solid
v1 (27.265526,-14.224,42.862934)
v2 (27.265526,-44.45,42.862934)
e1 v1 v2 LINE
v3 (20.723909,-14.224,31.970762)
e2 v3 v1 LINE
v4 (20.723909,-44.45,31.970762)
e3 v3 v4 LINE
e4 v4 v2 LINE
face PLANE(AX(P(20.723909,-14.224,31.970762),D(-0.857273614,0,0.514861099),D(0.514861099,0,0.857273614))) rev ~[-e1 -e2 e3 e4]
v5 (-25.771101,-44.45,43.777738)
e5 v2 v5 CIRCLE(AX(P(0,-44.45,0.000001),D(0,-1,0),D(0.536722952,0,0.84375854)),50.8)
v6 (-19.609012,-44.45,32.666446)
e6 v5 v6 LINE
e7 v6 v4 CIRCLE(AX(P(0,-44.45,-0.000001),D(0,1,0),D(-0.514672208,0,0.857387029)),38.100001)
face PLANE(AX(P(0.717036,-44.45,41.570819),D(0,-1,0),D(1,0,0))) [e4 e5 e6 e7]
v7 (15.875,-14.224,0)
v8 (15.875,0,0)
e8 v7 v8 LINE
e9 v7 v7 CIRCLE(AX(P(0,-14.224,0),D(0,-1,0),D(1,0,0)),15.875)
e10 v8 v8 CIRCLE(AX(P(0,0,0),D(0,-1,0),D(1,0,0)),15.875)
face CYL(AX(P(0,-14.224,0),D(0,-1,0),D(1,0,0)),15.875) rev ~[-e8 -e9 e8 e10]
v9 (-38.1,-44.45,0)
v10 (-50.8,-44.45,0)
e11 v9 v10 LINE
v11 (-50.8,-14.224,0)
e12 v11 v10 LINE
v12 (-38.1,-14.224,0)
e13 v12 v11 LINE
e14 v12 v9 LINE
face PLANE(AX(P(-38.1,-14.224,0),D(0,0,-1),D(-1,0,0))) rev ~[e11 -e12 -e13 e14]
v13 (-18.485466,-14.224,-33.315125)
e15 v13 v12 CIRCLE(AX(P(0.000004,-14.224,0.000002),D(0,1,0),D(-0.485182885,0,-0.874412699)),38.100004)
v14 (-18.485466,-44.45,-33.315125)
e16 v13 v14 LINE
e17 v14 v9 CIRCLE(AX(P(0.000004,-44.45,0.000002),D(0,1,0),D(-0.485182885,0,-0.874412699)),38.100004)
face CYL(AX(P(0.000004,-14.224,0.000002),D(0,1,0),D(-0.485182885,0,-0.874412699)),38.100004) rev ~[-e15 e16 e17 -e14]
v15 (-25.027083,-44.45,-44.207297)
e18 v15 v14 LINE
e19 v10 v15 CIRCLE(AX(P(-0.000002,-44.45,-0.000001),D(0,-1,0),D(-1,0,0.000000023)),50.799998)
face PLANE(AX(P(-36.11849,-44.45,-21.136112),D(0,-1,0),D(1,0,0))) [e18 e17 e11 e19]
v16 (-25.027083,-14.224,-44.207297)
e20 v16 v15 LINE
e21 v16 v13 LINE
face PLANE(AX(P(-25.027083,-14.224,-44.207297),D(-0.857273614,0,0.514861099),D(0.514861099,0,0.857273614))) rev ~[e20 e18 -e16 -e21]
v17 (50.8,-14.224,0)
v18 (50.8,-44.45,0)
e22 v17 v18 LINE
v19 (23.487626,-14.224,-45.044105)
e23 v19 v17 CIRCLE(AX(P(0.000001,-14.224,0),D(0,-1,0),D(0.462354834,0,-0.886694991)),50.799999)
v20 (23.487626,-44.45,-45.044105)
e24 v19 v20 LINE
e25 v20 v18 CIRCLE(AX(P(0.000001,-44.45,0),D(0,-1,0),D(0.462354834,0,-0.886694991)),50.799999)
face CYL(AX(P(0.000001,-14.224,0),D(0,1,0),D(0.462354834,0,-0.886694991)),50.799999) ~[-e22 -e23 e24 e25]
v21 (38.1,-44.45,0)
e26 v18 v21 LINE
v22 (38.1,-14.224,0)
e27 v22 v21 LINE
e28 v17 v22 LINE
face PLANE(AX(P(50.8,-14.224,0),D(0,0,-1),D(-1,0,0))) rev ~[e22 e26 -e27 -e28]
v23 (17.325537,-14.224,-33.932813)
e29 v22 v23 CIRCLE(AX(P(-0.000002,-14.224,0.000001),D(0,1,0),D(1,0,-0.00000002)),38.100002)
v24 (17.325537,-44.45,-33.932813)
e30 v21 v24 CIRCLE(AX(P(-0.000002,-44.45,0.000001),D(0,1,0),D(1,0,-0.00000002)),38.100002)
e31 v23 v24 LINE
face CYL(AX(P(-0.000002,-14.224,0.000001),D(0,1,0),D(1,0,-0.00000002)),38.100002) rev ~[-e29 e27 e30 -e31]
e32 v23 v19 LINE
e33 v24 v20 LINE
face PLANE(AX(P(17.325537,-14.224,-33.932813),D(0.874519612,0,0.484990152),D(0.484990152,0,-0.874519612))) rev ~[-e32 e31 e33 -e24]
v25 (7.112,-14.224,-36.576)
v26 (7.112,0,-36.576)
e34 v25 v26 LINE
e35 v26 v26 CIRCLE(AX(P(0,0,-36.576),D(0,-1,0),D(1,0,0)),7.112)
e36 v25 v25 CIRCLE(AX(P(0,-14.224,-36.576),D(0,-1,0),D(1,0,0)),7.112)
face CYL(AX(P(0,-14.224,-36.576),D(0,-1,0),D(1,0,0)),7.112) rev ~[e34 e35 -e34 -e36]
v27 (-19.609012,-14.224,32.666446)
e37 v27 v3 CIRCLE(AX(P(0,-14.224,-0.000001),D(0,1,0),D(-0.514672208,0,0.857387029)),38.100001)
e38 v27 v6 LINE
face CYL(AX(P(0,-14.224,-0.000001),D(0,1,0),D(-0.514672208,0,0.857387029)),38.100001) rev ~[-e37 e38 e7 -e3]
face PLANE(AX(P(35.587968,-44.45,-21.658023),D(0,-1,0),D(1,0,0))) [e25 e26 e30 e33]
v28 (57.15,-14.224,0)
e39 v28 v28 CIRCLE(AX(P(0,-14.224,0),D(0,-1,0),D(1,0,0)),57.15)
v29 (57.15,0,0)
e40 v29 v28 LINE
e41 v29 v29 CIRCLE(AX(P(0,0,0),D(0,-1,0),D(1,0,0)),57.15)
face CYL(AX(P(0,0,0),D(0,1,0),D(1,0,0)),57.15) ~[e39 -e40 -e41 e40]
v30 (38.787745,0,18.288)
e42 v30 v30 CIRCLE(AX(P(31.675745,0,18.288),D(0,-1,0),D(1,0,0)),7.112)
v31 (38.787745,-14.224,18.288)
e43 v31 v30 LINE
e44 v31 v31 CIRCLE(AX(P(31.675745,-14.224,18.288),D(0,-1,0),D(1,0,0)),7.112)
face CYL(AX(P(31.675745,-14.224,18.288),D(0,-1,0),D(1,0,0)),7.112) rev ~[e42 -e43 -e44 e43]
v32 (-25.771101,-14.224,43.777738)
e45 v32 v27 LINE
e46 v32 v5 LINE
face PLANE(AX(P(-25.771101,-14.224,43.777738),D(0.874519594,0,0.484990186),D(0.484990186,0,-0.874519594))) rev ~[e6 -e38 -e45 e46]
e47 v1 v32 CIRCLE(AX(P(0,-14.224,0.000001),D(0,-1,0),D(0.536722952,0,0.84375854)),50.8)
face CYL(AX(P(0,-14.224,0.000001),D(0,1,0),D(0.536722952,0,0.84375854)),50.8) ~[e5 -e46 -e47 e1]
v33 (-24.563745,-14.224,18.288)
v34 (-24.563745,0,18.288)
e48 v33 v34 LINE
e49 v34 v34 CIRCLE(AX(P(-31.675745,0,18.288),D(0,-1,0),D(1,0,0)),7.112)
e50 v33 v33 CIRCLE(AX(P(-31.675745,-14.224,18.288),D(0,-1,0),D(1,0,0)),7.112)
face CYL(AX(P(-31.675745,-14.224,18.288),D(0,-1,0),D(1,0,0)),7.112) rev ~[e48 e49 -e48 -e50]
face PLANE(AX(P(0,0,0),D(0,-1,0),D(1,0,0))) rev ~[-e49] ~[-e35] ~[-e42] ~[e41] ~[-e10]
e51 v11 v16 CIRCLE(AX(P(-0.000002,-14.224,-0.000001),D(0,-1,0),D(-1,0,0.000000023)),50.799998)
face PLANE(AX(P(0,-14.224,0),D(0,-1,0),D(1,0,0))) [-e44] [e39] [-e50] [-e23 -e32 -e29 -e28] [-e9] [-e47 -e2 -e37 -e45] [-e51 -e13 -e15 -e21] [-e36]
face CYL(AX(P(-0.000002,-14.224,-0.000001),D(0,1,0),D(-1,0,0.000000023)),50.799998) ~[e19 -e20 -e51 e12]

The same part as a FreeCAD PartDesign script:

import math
import FreeCAD as App
import Part
import Sketcher
from FreeCAD import Vector
Q = App.Units.Quantity

doc = App.newDocument("Part")
body = doc.addObject("PartDesign::Body", "Body")

# Sketch on XZ plane
sketch1 = body.newObject("Sketcher::SketchObject", "Sketch")
sketch1.AttachmentSupport = (doc.getObject("XZ_Plane"), [""])
sketch1.MapMode = "FlatFace"
sketch1.addGeometry(Part.Circle(Vector(0, 0, 0), Vector(0, 0, 1), 57), False)
sketch1.addConstraint(Sketcher.Constraint("Coincident", 0, 3, -1, 1))
sketch1.addConstraint(Sketcher.Constraint("Diameter", 0, Q("4.5 in")))
pad1 = body.newObject("PartDesign::Pad", "Pad")
pad1.Profile = sketch1
pad1.Length = Q("0.56 in")

# Sketch on XZ plane
sketch2 = body.newObject("Sketcher::SketchObject", "Sketch001")
sketch2.AttachmentSupport = (doc.getObject("XZ_Plane"), [""])
sketch2.MapMode = "FlatFace"
sketch2.AttachmentOffset = App.Placement(Vector(0, 0, 0.56 * 25.4), App.Rotation())
sketch2.addGeometry(Part.Circle(Vector(0, 0, 0), Vector(0, 0, 1), 16), False)
sketch2.addConstraint(Sketcher.Constraint("Coincident", 0, 3, -1, 1))
sketch2.addConstraint(Sketcher.Constraint("Diameter", 0, Q("1.25 in")))
pocket1 = body.newObject("PartDesign::Pocket", "Pocket")
pocket1.Profile = sketch2
pocket1.Type = "ThroughAll"

# Sketch on XZ plane
sketch3 = body.newObject("Sketcher::SketchObject", "Sketch002")
sketch3.AttachmentSupport = (doc.getObject("XZ_Plane"), [""])
sketch3.MapMode = "FlatFace"
sketch3.AttachmentOffset = App.Placement(Vector(0, 0, 0.56 * 25.4), App.Rotation())
sketch3.addGeometry(Part.Circle(Vector(0, -37, 0), Vector(0, 0, 1), 7), False)
sketch3.addGeometry(Part.Circle(Vector(32, 18, 0), Vector(0, 0, 1), 7), False)
sketch3.addGeometry(Part.Circle(Vector(-32, 18, 0), Vector(0, 0, 1), 7), False)
sketch3.addConstraint(Sketcher.Constraint("Equal", 0, 1))
sketch3.addConstraint(Sketcher.Constraint("Equal", 1, 2))
sketch3.addConstraint(Sketcher.Constraint("Symmetric", 1, 3, 2, 3, -2))
sketch3.addConstraint(Sketcher.Constraint("PointOnObject", 0, 3, -2))
sketch3.addConstraint(Sketcher.Constraint("Diameter", 0, Q("0.56 in")))
sketch3.addConstraint(Sketcher.Constraint("DistanceY", 0, 3, -1, 1, Q("1.44 in")))
sketch3.addConstraint(Sketcher.Constraint("DistanceY", -1, 1, 1, 3, Q("0.72 in")))
sketch3.addConstraint(Sketcher.Constraint("DistanceX", 2, 3, 1, 3, Q("63.35149 mm")))
pocket2 = body.newObject("PartDesign::Pocket", "Pocket001")
pocket2.Profile = sketch3
pocket2.Type = "ThroughAll"

# Sketch on XZ plane
sketch4 = body.newObject("Sketcher::SketchObject", "Sketch003")
sketch4.AttachmentSupport = (doc.getObject("XZ_Plane"), [""])
sketch4.MapMode = "FlatFace"
sketch4.AttachmentOffset = App.Placement(Vector(0, 0, 0.56 * 25.4), App.Rotation())
sketch4.addGeometry(Part.ArcOfCircle(Part.Circle(Vector(0.000004, 0.000002, 0), Vector(0, 0, 1), 38.100004), math.radians(-179.999997), math.radians(-119.024455)), False)
sketch4.addGeometry(Part.LineSegment(Vector(-38.1, 0, 0), Vector(-50.8, 0, 0)), False)
sketch4.addGeometry(Part.ArcOfCircle(Part.Circle(Vector(-0.000002, -0.000001, 0), Vector(0, 0, 1), 50.799998), math.radians(179.999999), math.radians(240.484494)), False)
sketch4.addGeometry(Part.LineSegment(Vector(-25.027083, -44.207297, 0), Vector(-18.485466, -33.315125, 0)), False)
sketch4.addGeometry(Part.LineSegment(Vector(50.8, 0, 0), Vector(38.1, 0, 0)), False)
sketch4.addGeometry(Part.ArcOfCircle(Part.Circle(Vector(-0.000002, 0.000001, 0), Vector(0, 0, 1), 38.100002), math.radians(-62.951887), math.radians(-0.000001)), False)
sketch4.addGeometry(Part.LineSegment(Vector(17.325537, -33.932813, 0), Vector(23.487626, -45.044105, 0)), False)
sketch4.addGeometry(Part.ArcOfCircle(Part.Circle(Vector(0.000001, 0, 0), Vector(0, 0, 1), 50.799999), math.radians(-62.460835), math.radians(0)), False)
sketch4.addGeometry(Part.LineSegment(Vector(20.723909, 31.970762, 0), Vector(27.265526, 42.862934, 0)), False)
sketch4.addGeometry(Part.ArcOfCircle(Part.Circle(Vector(0, 0.000001, 0), Vector(0, 0, 1), 50.8), math.radians(57.539167), math.radians(120.484493)), False)
sketch4.addGeometry(Part.LineSegment(Vector(-25.771101, 43.777738, 0), Vector(-19.609012, 32.666446, 0)), False)
sketch4.addGeometry(Part.ArcOfCircle(Part.Circle(Vector(0, -0.000001, 0), Vector(0, 0, 1), 38.100001), math.radians(57.048111), math.radians(120.975547)), False)
sketch4.addConstraint(Sketcher.Constraint("Coincident", 0, 1, 1, 1))
sketch4.addConstraint(Sketcher.Constraint("Coincident", 1, 2, 2, 1))
sketch4.addConstraint(Sketcher.Constraint("Coincident", 2, 2, 3, 1))
sketch4.addConstraint(Sketcher.Constraint("Coincident", 3, 2, 0, 2))
sketch4.addConstraint(Sketcher.Constraint("Coincident", 4, 2, 5, 2))
sketch4.addConstraint(Sketcher.Constraint("Coincident", 5, 1, 6, 1))
sketch4.addConstraint(Sketcher.Constraint("Coincident", 6, 2, 7, 1))
sketch4.addConstraint(Sketcher.Constraint("Coincident", 7, 2, 4, 1))
sketch4.addConstraint(Sketcher.Constraint("Coincident", 8, 2, 9, 1))
sketch4.addConstraint(Sketcher.Constraint("Coincident", 9, 2, 10, 1))
sketch4.addConstraint(Sketcher.Constraint("Coincident", 10, 2, 11, 2))
sketch4.addConstraint(Sketcher.Constraint("Coincident", 11, 1, 8, 1))
sketch4.addConstraint(Sketcher.Constraint("Horizontal", 1))
sketch4.addConstraint(Sketcher.Constraint("Horizontal", 4))
sketch4.addConstraint(Sketcher.Constraint("Coincident", 0, 3, -1, 1))
sketch4.addConstraint(Sketcher.Constraint("Coincident", 2, 3, -1, 1))
sketch4.addConstraint(Sketcher.Constraint("Coincident", 5, 3, -1, 1))
sketch4.addConstraint(Sketcher.Constraint("Coincident", 7, 3, -1, 1))
sketch4.addConstraint(Sketcher.Constraint("Coincident", 9, 3, -1, 1))
sketch4.addConstraint(Sketcher.Constraint("Coincident", 11, 3, -1, 1))
sketch4.addConstraint(Sketcher.Constraint("Equal", 0, 5))
sketch4.addConstraint(Sketcher.Constraint("Equal", 2, 7))
sketch4.addConstraint(Sketcher.Constraint("Equal", 7, 9))
sketch4.addConstraint(Sketcher.Constraint("Equal", 5, 11))
sketch4.addConstraint(Sketcher.Constraint("PointOnObject", 0, 1, -1))
sketch4.addConstraint(Sketcher.Constraint("PointOnObject", 4, 2, -1))
sketch4.addConstraint(Sketcher.Constraint("Parallel", 3, 8))
sketch4.addConstraint(Sketcher.Constraint("Parallel", 6, 10))
sketch4.addConstraint(Sketcher.Constraint("Equal", 3, 6))
sketch4.addConstraint(Sketcher.Constraint("Equal", 6, 8))
sketch4.addConstraint(Sketcher.Constraint("Equal", 8, 10))
sketch4.addConstraint(Sketcher.Constraint("Radius", 2, Q("1.9999999 in")))
sketch4.addConstraint(Sketcher.Constraint("Radius", 0, Q("1.5000001 in")))
sketch4.addConstraint(Sketcher.Constraint("DistanceX", 9, 2, -1, 1, Q("25.771101 mm")))
sketch4.addConstraint(Sketcher.Constraint("DistanceX", 10, 2, -1, 1, Q("19.609012 mm")))
sketch4.addConstraint(Sketcher.Constraint("DistanceX", -1, 1, 11, 1, Q("20.723909 mm")))
pad2 = body.newObject("PartDesign::Pad", "Pad001")
pad2.Profile = sketch4
pad2.Length = Q("1.19 in")

doc.recompute()
